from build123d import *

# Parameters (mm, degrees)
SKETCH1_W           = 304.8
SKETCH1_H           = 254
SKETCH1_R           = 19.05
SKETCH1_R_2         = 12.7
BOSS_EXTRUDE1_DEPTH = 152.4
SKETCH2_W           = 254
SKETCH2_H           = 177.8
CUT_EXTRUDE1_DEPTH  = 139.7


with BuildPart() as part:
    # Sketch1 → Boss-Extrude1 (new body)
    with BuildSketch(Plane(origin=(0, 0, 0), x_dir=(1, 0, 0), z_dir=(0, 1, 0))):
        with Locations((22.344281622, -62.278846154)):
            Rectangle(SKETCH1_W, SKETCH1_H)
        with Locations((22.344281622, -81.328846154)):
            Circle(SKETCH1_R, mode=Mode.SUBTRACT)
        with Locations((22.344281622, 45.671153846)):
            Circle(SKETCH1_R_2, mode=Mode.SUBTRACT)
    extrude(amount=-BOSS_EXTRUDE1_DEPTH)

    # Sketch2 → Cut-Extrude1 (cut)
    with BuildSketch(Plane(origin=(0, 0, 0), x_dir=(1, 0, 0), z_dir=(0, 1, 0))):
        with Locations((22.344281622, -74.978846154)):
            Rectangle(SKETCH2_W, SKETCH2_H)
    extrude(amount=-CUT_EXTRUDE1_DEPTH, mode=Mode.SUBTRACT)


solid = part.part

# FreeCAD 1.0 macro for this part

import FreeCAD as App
import Part
import Sketcher
from FreeCAD import Vector
Q = App.Units.Quantity


def add_polygon(sketch, points):
    """Adds a closed chain of lines whose ends are joined by coincident constraints."""
    first, n = sketch.GeometryCount, len(points)
    for a, b in zip(points, points[1:] + points[:1]):
        sketch.addGeometry(Part.LineSegment(App.Vector(*a, 0), App.Vector(*b, 0)), False)
    for i in range(n):
        sketch.addConstraint(Sketcher.Constraint("Coincident", first + i, 2, first + (i + 1) % n, 1))

doc = App.newDocument("Part")
body = doc.addObject("PartDesign::Body", "Body")

# Sketch on XZ plane
sketch1 = body.newObject("Sketcher::SketchObject", "Sketch")
sketch1.AttachmentSupport = (doc.getObject("XZ_Plane"), [""])
sketch1.MapMode = "FlatFace"
add_polygon(sketch1, [(-130.055718, -64.721154), (-130.055718, 189.278846), (174.744282, 189.278846), (174.744282, -64.721154)])  # lines 0-3
sketch1.addGeometry(Part.Circle(Vector(22.344282, 81.328846, 0), Vector(0, 0, 1), 19.05), False)  # 4
sketch1.addGeometry(Part.Circle(Vector(22.344282, -45.671154, 0), Vector(0, 0, 1), 12.7), False)  # 5
sketch1.addConstraint([
    Sketcher.Constraint("Vertical", 0),
    Sketcher.Constraint("Horizontal", 1),
    Sketcher.Constraint("Vertical", 2),
    Sketcher.Constraint("Horizontal", 3),
    Sketcher.Constraint("Vertical", 4, 3, 5, 3),
    Sketcher.Constraint("Diameter", 5, Q("1 in")),
    Sketcher.Constraint("Diameter", 4, Q("1.5 in")),
    Sketcher.Constraint("DistanceX", 1, 1, 1, 2, Q("12 in")),
    Sketcher.Constraint("DistanceY", 0, 1, 0, 2, Q("10 in")),
    Sketcher.Constraint("DistanceY", 5, 3, 4, 3, Q("5 in")),
    Sketcher.Constraint("DistanceX", 0, 2, 4, 3, Q("6 in")),
    Sketcher.Constraint("DistanceY", 4, 3, 0, 2, Q("4.25 in")),
    Sketcher.Constraint("DistanceX", -1, 1, 4, 3, 22.344282),
    Sketcher.Constraint("DistanceY", -1, 1, 4, 3, 81.328846),
])
pad1 = body.newObject("PartDesign::Pad", "Pad")
pad1.Profile = sketch1
pad1.Length = Q("6 in")

# Sketch on XZ plane
sketch2 = body.newObject("Sketcher::SketchObject", "Sketch001")
sketch2.AttachmentSupport = (doc.getObject("XZ_Plane"), [""])
sketch2.MapMode = "FlatFace"
add_polygon(sketch2, [(-104.655718, -13.921154), (-104.655718, 163.878846), (149.344282, 163.878846), (149.344282, -13.921154)])  # lines 0-3
sketch2.addConstraint([
    Sketcher.Constraint("Vertical", 0),
    Sketcher.Constraint("Horizontal", 1),
    Sketcher.Constraint("Vertical", 2),
    Sketcher.Constraint("Horizontal", 3),
    Sketcher.Constraint("DistanceX", 1, 1, 1, 2, Q("10 in")),
    Sketcher.Constraint("DistanceY", 0, 1, 0, 2, Q("7 in")),
    Sketcher.Constraint("DistanceX", 0, 2, -1, 1, 104.655718),
    Sketcher.Constraint("DistanceY", -1, 1, 0, 2, 163.878846),
])
pocket1 = body.newObject("PartDesign::Pocket", "Pocket")
pocket1.Profile = sketch2
pocket1.Length = Q("5.5 in")
pocket1.Reversed = True

doc.recompute()
